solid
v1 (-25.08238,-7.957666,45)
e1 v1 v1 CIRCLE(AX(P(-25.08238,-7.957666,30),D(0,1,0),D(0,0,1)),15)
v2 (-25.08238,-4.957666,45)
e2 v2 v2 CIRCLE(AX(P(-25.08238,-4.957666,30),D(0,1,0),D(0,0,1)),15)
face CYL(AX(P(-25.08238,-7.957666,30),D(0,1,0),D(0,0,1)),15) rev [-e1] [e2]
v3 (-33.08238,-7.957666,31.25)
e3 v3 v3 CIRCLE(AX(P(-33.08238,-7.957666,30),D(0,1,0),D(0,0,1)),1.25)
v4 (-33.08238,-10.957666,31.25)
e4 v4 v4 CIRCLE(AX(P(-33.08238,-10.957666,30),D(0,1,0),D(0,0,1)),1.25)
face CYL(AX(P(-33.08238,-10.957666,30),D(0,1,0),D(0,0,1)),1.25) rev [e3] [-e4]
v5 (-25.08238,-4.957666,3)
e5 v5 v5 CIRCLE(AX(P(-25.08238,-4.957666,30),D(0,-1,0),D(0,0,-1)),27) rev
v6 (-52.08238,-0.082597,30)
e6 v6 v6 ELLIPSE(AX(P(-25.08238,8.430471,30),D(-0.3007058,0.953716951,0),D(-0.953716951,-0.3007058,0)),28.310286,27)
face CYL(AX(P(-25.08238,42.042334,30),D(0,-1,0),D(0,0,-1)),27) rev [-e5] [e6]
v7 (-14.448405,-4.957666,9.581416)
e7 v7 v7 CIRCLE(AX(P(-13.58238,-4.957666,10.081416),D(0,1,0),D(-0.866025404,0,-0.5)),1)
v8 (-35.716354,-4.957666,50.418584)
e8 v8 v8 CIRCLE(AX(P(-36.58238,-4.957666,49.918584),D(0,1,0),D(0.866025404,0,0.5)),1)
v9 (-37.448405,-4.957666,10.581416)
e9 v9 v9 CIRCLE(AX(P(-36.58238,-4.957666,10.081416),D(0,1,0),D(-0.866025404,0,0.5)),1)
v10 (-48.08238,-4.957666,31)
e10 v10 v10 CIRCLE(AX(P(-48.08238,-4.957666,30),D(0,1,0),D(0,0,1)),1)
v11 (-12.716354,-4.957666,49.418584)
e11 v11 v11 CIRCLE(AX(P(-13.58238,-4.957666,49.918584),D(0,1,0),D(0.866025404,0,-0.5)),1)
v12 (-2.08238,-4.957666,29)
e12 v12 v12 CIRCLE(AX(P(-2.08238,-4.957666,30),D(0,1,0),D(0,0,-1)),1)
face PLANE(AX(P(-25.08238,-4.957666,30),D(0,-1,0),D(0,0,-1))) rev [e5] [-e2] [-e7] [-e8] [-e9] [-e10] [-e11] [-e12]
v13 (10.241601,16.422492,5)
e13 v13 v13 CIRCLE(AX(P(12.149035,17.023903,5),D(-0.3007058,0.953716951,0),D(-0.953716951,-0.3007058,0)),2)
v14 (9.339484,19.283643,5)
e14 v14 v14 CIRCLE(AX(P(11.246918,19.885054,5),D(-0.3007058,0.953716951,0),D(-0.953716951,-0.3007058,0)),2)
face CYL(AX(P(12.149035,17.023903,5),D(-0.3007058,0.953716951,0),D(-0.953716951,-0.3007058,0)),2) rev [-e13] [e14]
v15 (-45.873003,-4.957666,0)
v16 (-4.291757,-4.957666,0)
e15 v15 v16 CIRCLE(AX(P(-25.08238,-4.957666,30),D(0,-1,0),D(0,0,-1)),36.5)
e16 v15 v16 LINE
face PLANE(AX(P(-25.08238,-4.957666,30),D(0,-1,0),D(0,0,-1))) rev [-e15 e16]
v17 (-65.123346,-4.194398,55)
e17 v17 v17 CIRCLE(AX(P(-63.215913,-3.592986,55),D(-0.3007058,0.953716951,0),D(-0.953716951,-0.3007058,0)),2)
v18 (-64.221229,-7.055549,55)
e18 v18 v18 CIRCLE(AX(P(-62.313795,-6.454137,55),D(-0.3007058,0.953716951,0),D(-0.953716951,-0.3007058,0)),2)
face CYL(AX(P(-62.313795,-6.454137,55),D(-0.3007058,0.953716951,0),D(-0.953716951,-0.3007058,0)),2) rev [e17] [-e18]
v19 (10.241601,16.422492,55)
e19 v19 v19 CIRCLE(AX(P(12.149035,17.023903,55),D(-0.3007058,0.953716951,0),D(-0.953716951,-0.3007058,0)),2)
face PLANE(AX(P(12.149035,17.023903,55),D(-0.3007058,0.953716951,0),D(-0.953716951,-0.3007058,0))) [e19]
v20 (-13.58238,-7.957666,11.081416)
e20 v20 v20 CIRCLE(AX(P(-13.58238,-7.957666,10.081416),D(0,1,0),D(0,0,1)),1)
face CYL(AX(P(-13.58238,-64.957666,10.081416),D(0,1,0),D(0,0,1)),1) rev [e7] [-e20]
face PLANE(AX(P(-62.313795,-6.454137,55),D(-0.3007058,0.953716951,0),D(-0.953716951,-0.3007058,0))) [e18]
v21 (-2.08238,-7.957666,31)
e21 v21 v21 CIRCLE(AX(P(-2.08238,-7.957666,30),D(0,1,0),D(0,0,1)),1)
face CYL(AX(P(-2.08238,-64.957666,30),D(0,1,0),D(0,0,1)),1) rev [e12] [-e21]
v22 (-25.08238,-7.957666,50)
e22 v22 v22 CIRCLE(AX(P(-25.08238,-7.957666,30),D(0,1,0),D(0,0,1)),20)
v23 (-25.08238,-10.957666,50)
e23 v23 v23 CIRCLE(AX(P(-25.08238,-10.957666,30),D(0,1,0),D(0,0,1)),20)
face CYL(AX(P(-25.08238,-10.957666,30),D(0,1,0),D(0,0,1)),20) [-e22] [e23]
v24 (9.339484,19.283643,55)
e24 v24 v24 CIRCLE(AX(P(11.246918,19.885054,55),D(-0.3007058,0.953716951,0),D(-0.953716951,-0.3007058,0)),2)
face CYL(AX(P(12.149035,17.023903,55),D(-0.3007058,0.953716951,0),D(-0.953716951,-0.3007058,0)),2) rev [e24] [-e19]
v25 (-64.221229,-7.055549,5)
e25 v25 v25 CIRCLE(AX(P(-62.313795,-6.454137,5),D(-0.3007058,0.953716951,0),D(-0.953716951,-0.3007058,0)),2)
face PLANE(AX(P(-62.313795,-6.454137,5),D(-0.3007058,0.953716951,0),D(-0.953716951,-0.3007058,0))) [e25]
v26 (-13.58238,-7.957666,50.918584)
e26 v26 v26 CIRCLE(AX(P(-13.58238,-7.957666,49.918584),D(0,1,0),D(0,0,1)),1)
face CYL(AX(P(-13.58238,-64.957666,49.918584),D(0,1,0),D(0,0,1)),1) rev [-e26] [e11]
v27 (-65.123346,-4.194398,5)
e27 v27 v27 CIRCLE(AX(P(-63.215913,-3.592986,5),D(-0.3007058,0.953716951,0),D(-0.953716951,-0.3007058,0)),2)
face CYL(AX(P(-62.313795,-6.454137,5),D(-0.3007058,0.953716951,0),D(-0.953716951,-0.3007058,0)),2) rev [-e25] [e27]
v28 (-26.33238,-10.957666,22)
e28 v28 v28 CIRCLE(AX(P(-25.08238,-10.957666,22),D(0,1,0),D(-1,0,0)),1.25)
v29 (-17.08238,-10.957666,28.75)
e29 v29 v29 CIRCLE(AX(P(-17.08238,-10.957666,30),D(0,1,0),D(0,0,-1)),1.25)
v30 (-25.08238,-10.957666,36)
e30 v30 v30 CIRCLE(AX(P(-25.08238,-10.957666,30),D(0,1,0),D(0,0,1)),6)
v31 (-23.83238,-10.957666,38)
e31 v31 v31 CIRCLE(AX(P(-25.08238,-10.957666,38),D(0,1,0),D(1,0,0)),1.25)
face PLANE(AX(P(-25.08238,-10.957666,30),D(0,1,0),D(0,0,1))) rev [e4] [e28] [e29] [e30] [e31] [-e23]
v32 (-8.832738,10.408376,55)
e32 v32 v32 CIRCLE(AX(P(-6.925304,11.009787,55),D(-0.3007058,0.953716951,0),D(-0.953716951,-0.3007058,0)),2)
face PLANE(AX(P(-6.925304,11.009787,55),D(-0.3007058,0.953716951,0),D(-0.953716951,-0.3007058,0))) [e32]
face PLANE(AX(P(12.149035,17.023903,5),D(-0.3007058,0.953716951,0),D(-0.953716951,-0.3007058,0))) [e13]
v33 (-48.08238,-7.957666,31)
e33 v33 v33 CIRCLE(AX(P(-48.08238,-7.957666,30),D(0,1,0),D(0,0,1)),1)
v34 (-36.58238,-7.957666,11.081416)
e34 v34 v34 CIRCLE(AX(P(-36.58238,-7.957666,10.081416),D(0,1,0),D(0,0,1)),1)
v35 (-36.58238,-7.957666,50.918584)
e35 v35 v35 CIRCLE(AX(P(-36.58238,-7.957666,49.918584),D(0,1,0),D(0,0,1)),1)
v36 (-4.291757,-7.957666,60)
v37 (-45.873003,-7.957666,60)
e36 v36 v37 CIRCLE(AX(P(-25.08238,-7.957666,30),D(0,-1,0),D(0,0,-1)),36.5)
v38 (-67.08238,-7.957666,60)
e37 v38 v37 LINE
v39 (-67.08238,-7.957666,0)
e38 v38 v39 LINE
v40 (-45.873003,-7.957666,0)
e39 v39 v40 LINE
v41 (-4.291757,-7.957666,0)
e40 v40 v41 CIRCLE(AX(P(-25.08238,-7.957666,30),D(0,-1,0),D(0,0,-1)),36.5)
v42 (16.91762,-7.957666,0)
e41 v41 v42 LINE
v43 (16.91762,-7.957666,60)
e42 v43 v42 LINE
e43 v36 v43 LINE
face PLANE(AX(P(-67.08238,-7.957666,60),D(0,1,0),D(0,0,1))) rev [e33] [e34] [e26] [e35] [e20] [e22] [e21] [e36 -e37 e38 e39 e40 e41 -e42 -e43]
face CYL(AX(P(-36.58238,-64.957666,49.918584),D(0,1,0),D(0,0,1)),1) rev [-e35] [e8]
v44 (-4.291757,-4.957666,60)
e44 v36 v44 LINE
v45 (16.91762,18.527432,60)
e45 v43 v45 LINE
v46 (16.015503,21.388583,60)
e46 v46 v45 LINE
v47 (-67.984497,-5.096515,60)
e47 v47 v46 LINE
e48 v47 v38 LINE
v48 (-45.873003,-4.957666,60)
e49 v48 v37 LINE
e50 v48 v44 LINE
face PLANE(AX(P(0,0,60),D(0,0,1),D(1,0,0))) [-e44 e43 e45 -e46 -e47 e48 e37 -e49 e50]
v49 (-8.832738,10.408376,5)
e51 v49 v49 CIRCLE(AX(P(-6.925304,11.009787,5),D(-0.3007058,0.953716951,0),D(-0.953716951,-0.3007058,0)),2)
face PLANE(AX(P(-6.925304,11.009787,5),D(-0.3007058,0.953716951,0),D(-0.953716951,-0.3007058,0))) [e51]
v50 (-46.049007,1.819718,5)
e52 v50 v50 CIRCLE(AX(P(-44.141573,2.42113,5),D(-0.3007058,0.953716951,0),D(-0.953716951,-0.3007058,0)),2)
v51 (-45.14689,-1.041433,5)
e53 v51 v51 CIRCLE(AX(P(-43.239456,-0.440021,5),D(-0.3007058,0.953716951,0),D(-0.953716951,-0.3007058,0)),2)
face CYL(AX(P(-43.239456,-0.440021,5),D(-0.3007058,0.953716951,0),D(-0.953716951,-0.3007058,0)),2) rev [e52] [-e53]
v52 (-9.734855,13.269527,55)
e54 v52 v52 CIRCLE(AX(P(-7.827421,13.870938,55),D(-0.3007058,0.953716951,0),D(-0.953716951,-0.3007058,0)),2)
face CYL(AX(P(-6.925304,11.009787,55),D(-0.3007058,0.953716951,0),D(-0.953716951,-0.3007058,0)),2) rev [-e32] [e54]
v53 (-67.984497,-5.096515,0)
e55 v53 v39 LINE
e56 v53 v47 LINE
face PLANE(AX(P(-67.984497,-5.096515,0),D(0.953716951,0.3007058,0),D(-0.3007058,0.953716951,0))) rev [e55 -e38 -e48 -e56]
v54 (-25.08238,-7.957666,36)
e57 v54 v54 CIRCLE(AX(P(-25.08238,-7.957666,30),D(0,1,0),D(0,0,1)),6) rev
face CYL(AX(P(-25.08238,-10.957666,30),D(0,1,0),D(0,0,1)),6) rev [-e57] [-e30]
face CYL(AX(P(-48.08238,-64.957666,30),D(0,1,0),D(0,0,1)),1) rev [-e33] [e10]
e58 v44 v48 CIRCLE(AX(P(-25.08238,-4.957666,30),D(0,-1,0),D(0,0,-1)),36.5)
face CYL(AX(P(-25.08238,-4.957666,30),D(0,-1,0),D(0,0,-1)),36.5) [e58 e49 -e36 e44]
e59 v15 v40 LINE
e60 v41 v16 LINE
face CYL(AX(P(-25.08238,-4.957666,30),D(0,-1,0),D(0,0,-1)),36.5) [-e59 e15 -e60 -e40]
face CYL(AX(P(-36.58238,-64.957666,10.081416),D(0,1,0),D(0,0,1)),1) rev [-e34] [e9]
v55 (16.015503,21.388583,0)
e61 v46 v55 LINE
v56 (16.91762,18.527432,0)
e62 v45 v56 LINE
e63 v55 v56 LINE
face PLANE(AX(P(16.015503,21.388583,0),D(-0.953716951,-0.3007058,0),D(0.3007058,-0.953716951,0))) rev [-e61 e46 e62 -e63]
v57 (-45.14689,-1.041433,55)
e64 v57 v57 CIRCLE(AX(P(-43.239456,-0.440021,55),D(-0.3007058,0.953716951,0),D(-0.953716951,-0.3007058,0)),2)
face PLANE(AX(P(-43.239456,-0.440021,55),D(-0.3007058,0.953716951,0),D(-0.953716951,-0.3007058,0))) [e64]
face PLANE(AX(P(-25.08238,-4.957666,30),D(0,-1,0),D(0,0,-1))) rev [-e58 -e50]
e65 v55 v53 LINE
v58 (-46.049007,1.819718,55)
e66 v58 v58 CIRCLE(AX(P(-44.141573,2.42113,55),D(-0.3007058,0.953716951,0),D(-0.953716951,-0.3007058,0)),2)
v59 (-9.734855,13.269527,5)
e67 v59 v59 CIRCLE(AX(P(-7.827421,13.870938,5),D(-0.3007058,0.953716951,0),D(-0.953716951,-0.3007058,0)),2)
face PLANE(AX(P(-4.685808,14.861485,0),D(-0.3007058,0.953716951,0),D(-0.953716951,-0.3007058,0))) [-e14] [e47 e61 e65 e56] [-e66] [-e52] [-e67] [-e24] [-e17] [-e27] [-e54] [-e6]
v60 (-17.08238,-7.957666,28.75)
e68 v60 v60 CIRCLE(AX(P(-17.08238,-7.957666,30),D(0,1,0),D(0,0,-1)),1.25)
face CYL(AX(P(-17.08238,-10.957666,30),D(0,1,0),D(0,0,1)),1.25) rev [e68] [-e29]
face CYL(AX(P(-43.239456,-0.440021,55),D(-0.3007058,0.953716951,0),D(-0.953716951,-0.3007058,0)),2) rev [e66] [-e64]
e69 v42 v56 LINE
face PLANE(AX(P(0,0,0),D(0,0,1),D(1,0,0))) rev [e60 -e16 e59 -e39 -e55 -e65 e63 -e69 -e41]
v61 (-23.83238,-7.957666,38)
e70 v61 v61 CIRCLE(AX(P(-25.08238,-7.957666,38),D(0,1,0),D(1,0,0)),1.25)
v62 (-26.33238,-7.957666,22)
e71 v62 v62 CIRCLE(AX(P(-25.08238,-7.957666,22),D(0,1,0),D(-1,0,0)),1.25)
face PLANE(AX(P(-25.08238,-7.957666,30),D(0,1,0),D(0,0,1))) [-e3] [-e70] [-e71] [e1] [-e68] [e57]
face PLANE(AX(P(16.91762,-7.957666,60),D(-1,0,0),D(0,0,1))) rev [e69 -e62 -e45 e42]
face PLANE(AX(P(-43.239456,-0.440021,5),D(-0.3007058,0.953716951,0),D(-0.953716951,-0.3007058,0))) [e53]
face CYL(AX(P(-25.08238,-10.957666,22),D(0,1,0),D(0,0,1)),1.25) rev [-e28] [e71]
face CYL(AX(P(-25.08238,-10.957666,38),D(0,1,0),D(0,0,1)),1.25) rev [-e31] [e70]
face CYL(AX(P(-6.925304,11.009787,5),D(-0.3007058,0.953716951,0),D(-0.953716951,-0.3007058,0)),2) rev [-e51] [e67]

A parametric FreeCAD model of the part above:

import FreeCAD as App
import Part
import Sketcher
Q = App.Units.Quantity


def add_polygon(sketch, points):
    """Adds a closed chain of lines whose ends are joined by coincident constraints."""
    first, n = sketch.GeometryCount, len(points)
    for a, b in zip(points, points[1:] + points[:1]):
        sketch.addGeometry(Part.LineSegment(App.Vector(*a, 0), App.Vector(*b, 0)), False)
    for i in range(n):
        sketch.addConstraint(Sketcher.Constraint("Coincident", first + i, 2, first + (i + 1) % n, 1))

doc = App.newDocument("Part")
body = doc.addObject("PartDesign::Body", "Body")

# Sketch on XY plane
sketch1 = body.newObject("Sketcher::SketchObject", "Sketch")
sketch1.AttachmentSupport = (doc.getObject("XY_Plane"), [""])
sketch1.MapMode = "FlatFace"
add_polygon(sketch1, [(-67.08238, -7.957666), (16.91762, -7.957666), (16.91762, 18.527432)])  # lines 0-2
sketch1.addConstraint([
    Sketcher.Constraint("Horizontal", 0),
    Sketcher.Constraint("Vertical", 1),
    Sketcher.Constraint("DistanceX", 0, 1, 0, 2, Q("84 mm")),
    Sketcher.Constraint("Angle", 2, Q("-162.5 deg")),
    Sketcher.Constraint("DistanceX", -1, 1, 0, 2, Q("16.91762 mm")),
    Sketcher.Constraint("DistanceY", 0, 2, -1, 1, Q("7.957666 mm")),
])
pad1 = body.newObject("PartDesign::Pad", "Pad")
pad1.Profile = sketch1
pad1.Length = 60

# Sketch on an angled plane
sketch2 = body.newObject("Sketcher::SketchObject", "Sketch001")
sketch2.Placement = App.Placement(App.Vector(-3.783691, 12.000334, 0), App.Rotation(App.Vector(0.953716951, 0.3007058, 0), App.Vector(0, 0, -1.000000001), App.Vector(-0.3007058, 0.953716951, 0), "ZXY"))
add_polygon(sketch2, [(-66.370519, 0), (-66.370519, -60), (21.705927, -60), (21.705927, 0)])  # lines 0-3
sketch2.addConstraint([
    Sketcher.Constraint("Vertical", 0),
    Sketcher.Constraint("Horizontal", 1),
    Sketcher.Constraint("Vertical", 2),
    Sketcher.Constraint("Horizontal", 3),
    Sketcher.Constraint("PointOnObject", 2, 2, -1),
    Sketcher.Constraint("DistanceY", 0, 2, 0, 1, Q("60 mm")),
    Sketcher.Constraint("DistanceX", 1, 1, 1, 2, Q("88.076447 mm")),
    Sketcher.Constraint("DistanceX", 0, 2, -1, 1, Q("66.370519 mm")),
])
pad2 = body.newObject("PartDesign::Pad", "Pad001")
pad2.Profile = sketch2
pad2.Length = 3

# Sketch on XZ plane
sketch3 = body.newObject("Sketcher::SketchObject", "Sketch002")
sketch3.AttachmentSupport = (doc.getObject("XZ_Plane"), [""])
sketch3.MapMode = "FlatFace"
sketch3.AttachmentOffset = App.Placement(App.Vector(0, 0, 7.957666), App.Rotation())
sketch3.addGeometry(Part.Circle(App.Vector(-25.08238, 30, 0), App.Vector(0, 0, 1), 27), False)
sketch3.addConstraint([
    Sketcher.Constraint("Diameter", 0, Q("54 mm")),
    Sketcher.Constraint("DistanceY", -1, 1, 0, 3, Q("30 mm")),
    Sketcher.Constraint("DistanceX", 0, 3, -1, 1, Q("25.08238 mm")),
])
pocket1 = body.newObject("PartDesign::Pocket", "Pocket")
pocket1.Profile = sketch3
pocket1.Length = 50

# Sketch on XZ plane
sketch4 = body.newObject("Sketcher::SketchObject", "Sketch003")
sketch4.AttachmentSupport = (doc.getObject("XZ_Plane"), [""])
sketch4.MapMode = "FlatFace"
sketch4.AttachmentOffset = App.Placement(App.Vector(0, 0, 7.957666), App.Rotation())
sketch4.addGeometry(Part.Circle(App.Vector(-25.08238, 30, 0), App.Vector(0, 0, 1), 36.5), False)
sketch4.addConstraint([
    Sketcher.Constraint("Diameter", 0, Q("73 mm")),
    Sketcher.Constraint("DistanceY", -1, 1, 0, 3, Q("30 mm")),
    Sketcher.Constraint("DistanceX", 0, 3, -1, 1, Q("25.08238 mm")),
])
pad3 = body.newObject("PartDesign::Pad", "Pad002")
pad3.Profile = sketch4
pad3.Length = 3
pad3.Reversed = True

# Sketch on XZ plane
sketch5 = body.newObject("Sketcher::SketchObject", "Sketch004")
sketch5.AttachmentSupport = (doc.getObject("XZ_Plane"), [""])
sketch5.MapMode = "FlatFace"
sketch5.AttachmentOffset = App.Placement(App.Vector(0, 0, 4.957666), App.Rotation())
sketch5.addGeometry(Part.Circle(App.Vector(-25.08238, 30, 0), App.Vector(0, 0, 1), 20), False)
sketch5.addConstraint([
    Sketcher.Constraint("Diameter", 0, Q("40 mm")),
    Sketcher.Constraint("DistanceY", -1, 1, 0, 3, Q("30 mm")),
    Sketcher.Constraint("DistanceX", 0, 3, -1, 1, Q("25.08238 mm")),
])
pocket2 = body.newObject("PartDesign::Pocket", "Pocket001")
pocket2.Profile = sketch5
pocket2.Length = 60
pocket2.Reversed = True

# Sketch on XZ plane
sketch6 = body.newObject("Sketcher::SketchObject", "Sketch005")
sketch6.AttachmentSupport = (doc.getObject("XZ_Plane"), [""])
sketch6.MapMode = "FlatFace"
sketch6.AttachmentOffset = App.Placement(App.Vector(0, 0, 4.957666), App.Rotation())
sketch6.addGeometry(Part.Circle(App.Vector(-48.08238, 30, 0), App.Vector(0, 0, 1), 1), False)
sketch6.addConstraint([
    Sketcher.Constraint("Diameter", 0, Q("2 mm")),
    Sketcher.Constraint("DistanceY", -1, 1, 0, 3, Q("30 mm")),
    Sketcher.Constraint("DistanceX", 0, 3, -1, 1, Q("48.08238 mm")),
])
pocket3 = body.newObject("PartDesign::Pocket", "Pocket002")
pocket3.Profile = sketch6
pocket3.Length = 60
pocket3.Reversed = True
doc.recompute()

datumline = body.newObject("PartDesign::Line", "DatumLine")
datumline.Placement = App.Placement(App.Vector(-25.08238, 0, 30), App.Rotation(App.Vector(0, 0, 1), App.Vector(0, 1, 0)))
polarpattern = body.newObject("PartDesign::PolarPattern", "PolarPattern")
polarpattern.Originals = [pocket3]
polarpattern.Axis = (datumline, [""])
polarpattern.Angle = 360
polarpattern.Occurrences = 6
body.Tip = polarpattern

# Sketch on an angled plane
sketch7 = body.newObject("Sketcher::SketchObject", "Sketch006")
sketch7.Placement = App.Placement(App.Vector(-4.685808, 14.861485, 0), App.Rotation(App.Vector(0.953716951, 0.3007058, 0), App.Vector(0, 0, -1.000000001), App.Vector(-0.3007058, 0.953716951, 0), "ZXY"))
sketch7.addGeometry([
    Part.Circle(App.Vector(-61.370519, -5, 0), App.Vector(0, 0, 1), 2),
    Part.Circle(App.Vector(-61.370519, -55, 0), App.Vector(0, 0, 1), 2),
], False)
sketch7.addConstraint([
    Sketcher.Constraint("Equal", 0, 1),
    Sketcher.Constraint("Vertical", 0, 3, 1, 3),
    Sketcher.Constraint("Diameter", 0, Q("4 mm")),
    Sketcher.Constraint("DistanceY", 0, 3, -1, 1, Q("5 mm")),
    Sketcher.Constraint("DistanceY", 1, 3, -1, 1, Q("55 mm")),
    Sketcher.Constraint("DistanceX", 0, 3, -1, 1, Q("61.370519 mm")),
])
pocket4 = body.newObject("PartDesign::Pocket", "Pocket003")
pocket4.Profile = sketch7
pocket4.Length = 3
doc.recompute()

datumline2 = body.newObject("PartDesign::Line", "DatumLine001")
datumline2.Placement = App.Placement(App.Vector(0, 0, 0), App.Rotation(App.Vector(0, 0, 1), App.Vector(0.953716951, 0.300705799, 0)))
linearpattern = body.newObject("PartDesign::LinearPattern", "LinearPattern")
linearpattern.Originals = [pocket4]
linearpattern.Direction = (datumline2, [""])
linearpattern.Mode = "offset"
linearpattern.Offset = 20
linearpattern.Occurrences = 2
body.Tip = linearpattern

# Sketch on an angled plane
sketch8 = body.newObject("Sketcher::SketchObject", "Sketch007")
sketch8.Placement = App.Placement(App.Vector(-4.685808, 14.861485, 0), App.Rotation(App.Vector(0.953716951, 0.3007058, 0), App.Vector(0, 0, -1.000000001), App.Vector(-0.3007058, 0.953716951, 0), "ZXY"))
sketch8.addGeometry([
    Part.Circle(App.Vector(16.705927, -55, 0), App.Vector(0, 0, 1), 2),
    Part.Circle(App.Vector(16.705927, -5, 0), App.Vector(0, 0, 1), 2),
], False)
sketch8.addConstraint([
    Sketcher.Constraint("Equal", 0, 1),
    Sketcher.Constraint("Vertical", 0, 3, 1, 3),
    Sketcher.Constraint("Diameter", 0, Q("4 mm")),
    Sketcher.Constraint("DistanceY", 0, 3, -1, 1, Q("55 mm")),
    Sketcher.Constraint("DistanceY", 1, 3, -1, 1, Q("5 mm")),
    Sketcher.Constraint("DistanceX", -1, 1, 0, 3, Q("16.705927 mm")),
])
pocket5 = body.newObject("PartDesign::Pocket", "Pocket004")
pocket5.Profile = sketch8
pocket5.Length = 3
doc.recompute()

datumline3 = body.newObject("PartDesign::Line", "DatumLine002")
datumline3.Placement = App.Placement(App.Vector(0, 0, 0), App.Rotation(App.Vector(0, 0, 1), App.Vector(-0.953716951, -0.300705799, 0)))
linearpattern2 = body.newObject("PartDesign::LinearPattern", "LinearPattern001")
linearpattern2.Originals = [pocket5]
linearpattern2.Direction = (datumline3, [""])
linearpattern2.Mode = "offset"
linearpattern2.Offset = 20
linearpattern2.Occurrences = 2
body.Tip = linearpattern2

# Sketch on XZ plane
sketch9 = body.newObject("Sketcher::SketchObject", "Sketch008")
sketch9.AttachmentSupport = (doc.getObject("XZ_Plane"), [""])
sketch9.MapMode = "FlatFace"
sketch9.AttachmentOffset = App.Placement(App.Vector(0, 0, 4.957666), App.Rotation())
sketch9.addGeometry(Part.Circle(App.Vector(-25.08238, 30, 0), App.Vector(0, 0, 1), 20), False)
sketch9.addConstraint([
    Sketcher.Constraint("Diameter", 0, Q("40 mm")),
    Sketcher.Constraint("DistanceY", -1, 1, 0, 3, Q("30 mm")),
    Sketcher.Constraint("DistanceX", 0, 3, -1, 1, Q("25.08238 mm")),
])
pad4 = body.newObject("PartDesign::Pad", "Pad003")
pad4.Profile = sketch9
pad4.Length = 6

# Sketch on XZ plane
sketch10 = body.newObject("Sketcher::SketchObject", "Sketch009")
sketch10.AttachmentSupport = (doc.getObject("XZ_Plane"), [""])
sketch10.MapMode = "FlatFace"
sketch10.AttachmentOffset = App.Placement(App.Vector(0, 0, 4.957666), App.Rotation())
sketch10.addGeometry(Part.Circle(App.Vector(-25.08238, 30, 0), App.Vector(0, 0, 1), 6), False)
sketch10.addConstraint([
    Sketcher.Constraint("Diameter", 0, Q("12 mm")),
    Sketcher.Constraint("DistanceY", -1, 1, 0, 3, Q("30 mm")),
    Sketcher.Constraint("DistanceX", 0, 3, -1, 1, Q("25.08238 mm")),
])
pocket6 = body.newObject("PartDesign::Pocket", "Pocket005")
pocket6.Profile = sketch10
pocket6.Length = 6
pocket6.Reversed = True

# Sketch on XZ plane
sketch11 = body.newObject("Sketcher::SketchObject", "Sketch010")
sketch11.AttachmentSupport = (doc.getObject("XZ_Plane"), [""])
sketch11.MapMode = "FlatFace"
sketch11.AttachmentOffset = App.Placement(App.Vector(0, 0, 4.957666), App.Rotation())
sketch11.addGeometry(Part.Circle(App.Vector(-25.08238, 30, 0), App.Vector(0, 0, 1), 15), False)
sketch11.addConstraint([
    Sketcher.Constraint("Diameter", 0, Q("30 mm")),
    Sketcher.Constraint("DistanceY", -1, 1, 0, 3, Q("30 mm")),
    Sketcher.Constraint("DistanceX", 0, 3, -1, 1, Q("25.08238 mm")),
])
pocket7 = body.newObject("PartDesign::Pocket", "Pocket006")
pocket7.Profile = sketch11
pocket7.Length = 3
pocket7.Reversed = True

# Sketch on XZ plane
sketch12 = body.newObject("Sketcher::SketchObject", "Sketch011")
sketch12.AttachmentSupport = (doc.getObject("XZ_Plane"), [""])
sketch12.MapMode = "FlatFace"
sketch12.AttachmentOffset = App.Placement(App.Vector(0, 0, 7.957666), App.Rotation())
sketch12.addGeometry(Part.Circle(App.Vector(-33.08238, 30, 0), App.Vector(0, 0, 1), 1.25), False)
sketch12.addConstraint([
    Sketcher.Constraint("Diameter", 0, Q("2.5 mm")),
    Sketcher.Constraint("DistanceY", -1, 1, 0, 3, Q("30 mm")),
    Sketcher.Constraint("DistanceX", 0, 3, -1, 1, Q("33.08238 mm")),
])
pocket8 = body.newObject("PartDesign::Pocket", "Pocket007")
pocket8.Profile = sketch12
pocket8.Length = 3
pocket8.Reversed = True
doc.recompute()

datumline4 = body.newObject("PartDesign::Line", "DatumLine003")
datumline4.Placement = App.Placement(App.Vector(-25.08238, 0, 30), App.Rotation(App.Vector(0, 0, 1), App.Vector(0, 1, 0)))
polarpattern2 = body.newObject("PartDesign::PolarPattern", "PolarPattern001")
polarpattern2.Originals = [pocket8]
polarpattern2.Axis = (datumline4, [""])
polarpattern2.Angle = 360
polarpattern2.Occurrences = 4
body.Tip = polarpattern2

doc.recompute()
